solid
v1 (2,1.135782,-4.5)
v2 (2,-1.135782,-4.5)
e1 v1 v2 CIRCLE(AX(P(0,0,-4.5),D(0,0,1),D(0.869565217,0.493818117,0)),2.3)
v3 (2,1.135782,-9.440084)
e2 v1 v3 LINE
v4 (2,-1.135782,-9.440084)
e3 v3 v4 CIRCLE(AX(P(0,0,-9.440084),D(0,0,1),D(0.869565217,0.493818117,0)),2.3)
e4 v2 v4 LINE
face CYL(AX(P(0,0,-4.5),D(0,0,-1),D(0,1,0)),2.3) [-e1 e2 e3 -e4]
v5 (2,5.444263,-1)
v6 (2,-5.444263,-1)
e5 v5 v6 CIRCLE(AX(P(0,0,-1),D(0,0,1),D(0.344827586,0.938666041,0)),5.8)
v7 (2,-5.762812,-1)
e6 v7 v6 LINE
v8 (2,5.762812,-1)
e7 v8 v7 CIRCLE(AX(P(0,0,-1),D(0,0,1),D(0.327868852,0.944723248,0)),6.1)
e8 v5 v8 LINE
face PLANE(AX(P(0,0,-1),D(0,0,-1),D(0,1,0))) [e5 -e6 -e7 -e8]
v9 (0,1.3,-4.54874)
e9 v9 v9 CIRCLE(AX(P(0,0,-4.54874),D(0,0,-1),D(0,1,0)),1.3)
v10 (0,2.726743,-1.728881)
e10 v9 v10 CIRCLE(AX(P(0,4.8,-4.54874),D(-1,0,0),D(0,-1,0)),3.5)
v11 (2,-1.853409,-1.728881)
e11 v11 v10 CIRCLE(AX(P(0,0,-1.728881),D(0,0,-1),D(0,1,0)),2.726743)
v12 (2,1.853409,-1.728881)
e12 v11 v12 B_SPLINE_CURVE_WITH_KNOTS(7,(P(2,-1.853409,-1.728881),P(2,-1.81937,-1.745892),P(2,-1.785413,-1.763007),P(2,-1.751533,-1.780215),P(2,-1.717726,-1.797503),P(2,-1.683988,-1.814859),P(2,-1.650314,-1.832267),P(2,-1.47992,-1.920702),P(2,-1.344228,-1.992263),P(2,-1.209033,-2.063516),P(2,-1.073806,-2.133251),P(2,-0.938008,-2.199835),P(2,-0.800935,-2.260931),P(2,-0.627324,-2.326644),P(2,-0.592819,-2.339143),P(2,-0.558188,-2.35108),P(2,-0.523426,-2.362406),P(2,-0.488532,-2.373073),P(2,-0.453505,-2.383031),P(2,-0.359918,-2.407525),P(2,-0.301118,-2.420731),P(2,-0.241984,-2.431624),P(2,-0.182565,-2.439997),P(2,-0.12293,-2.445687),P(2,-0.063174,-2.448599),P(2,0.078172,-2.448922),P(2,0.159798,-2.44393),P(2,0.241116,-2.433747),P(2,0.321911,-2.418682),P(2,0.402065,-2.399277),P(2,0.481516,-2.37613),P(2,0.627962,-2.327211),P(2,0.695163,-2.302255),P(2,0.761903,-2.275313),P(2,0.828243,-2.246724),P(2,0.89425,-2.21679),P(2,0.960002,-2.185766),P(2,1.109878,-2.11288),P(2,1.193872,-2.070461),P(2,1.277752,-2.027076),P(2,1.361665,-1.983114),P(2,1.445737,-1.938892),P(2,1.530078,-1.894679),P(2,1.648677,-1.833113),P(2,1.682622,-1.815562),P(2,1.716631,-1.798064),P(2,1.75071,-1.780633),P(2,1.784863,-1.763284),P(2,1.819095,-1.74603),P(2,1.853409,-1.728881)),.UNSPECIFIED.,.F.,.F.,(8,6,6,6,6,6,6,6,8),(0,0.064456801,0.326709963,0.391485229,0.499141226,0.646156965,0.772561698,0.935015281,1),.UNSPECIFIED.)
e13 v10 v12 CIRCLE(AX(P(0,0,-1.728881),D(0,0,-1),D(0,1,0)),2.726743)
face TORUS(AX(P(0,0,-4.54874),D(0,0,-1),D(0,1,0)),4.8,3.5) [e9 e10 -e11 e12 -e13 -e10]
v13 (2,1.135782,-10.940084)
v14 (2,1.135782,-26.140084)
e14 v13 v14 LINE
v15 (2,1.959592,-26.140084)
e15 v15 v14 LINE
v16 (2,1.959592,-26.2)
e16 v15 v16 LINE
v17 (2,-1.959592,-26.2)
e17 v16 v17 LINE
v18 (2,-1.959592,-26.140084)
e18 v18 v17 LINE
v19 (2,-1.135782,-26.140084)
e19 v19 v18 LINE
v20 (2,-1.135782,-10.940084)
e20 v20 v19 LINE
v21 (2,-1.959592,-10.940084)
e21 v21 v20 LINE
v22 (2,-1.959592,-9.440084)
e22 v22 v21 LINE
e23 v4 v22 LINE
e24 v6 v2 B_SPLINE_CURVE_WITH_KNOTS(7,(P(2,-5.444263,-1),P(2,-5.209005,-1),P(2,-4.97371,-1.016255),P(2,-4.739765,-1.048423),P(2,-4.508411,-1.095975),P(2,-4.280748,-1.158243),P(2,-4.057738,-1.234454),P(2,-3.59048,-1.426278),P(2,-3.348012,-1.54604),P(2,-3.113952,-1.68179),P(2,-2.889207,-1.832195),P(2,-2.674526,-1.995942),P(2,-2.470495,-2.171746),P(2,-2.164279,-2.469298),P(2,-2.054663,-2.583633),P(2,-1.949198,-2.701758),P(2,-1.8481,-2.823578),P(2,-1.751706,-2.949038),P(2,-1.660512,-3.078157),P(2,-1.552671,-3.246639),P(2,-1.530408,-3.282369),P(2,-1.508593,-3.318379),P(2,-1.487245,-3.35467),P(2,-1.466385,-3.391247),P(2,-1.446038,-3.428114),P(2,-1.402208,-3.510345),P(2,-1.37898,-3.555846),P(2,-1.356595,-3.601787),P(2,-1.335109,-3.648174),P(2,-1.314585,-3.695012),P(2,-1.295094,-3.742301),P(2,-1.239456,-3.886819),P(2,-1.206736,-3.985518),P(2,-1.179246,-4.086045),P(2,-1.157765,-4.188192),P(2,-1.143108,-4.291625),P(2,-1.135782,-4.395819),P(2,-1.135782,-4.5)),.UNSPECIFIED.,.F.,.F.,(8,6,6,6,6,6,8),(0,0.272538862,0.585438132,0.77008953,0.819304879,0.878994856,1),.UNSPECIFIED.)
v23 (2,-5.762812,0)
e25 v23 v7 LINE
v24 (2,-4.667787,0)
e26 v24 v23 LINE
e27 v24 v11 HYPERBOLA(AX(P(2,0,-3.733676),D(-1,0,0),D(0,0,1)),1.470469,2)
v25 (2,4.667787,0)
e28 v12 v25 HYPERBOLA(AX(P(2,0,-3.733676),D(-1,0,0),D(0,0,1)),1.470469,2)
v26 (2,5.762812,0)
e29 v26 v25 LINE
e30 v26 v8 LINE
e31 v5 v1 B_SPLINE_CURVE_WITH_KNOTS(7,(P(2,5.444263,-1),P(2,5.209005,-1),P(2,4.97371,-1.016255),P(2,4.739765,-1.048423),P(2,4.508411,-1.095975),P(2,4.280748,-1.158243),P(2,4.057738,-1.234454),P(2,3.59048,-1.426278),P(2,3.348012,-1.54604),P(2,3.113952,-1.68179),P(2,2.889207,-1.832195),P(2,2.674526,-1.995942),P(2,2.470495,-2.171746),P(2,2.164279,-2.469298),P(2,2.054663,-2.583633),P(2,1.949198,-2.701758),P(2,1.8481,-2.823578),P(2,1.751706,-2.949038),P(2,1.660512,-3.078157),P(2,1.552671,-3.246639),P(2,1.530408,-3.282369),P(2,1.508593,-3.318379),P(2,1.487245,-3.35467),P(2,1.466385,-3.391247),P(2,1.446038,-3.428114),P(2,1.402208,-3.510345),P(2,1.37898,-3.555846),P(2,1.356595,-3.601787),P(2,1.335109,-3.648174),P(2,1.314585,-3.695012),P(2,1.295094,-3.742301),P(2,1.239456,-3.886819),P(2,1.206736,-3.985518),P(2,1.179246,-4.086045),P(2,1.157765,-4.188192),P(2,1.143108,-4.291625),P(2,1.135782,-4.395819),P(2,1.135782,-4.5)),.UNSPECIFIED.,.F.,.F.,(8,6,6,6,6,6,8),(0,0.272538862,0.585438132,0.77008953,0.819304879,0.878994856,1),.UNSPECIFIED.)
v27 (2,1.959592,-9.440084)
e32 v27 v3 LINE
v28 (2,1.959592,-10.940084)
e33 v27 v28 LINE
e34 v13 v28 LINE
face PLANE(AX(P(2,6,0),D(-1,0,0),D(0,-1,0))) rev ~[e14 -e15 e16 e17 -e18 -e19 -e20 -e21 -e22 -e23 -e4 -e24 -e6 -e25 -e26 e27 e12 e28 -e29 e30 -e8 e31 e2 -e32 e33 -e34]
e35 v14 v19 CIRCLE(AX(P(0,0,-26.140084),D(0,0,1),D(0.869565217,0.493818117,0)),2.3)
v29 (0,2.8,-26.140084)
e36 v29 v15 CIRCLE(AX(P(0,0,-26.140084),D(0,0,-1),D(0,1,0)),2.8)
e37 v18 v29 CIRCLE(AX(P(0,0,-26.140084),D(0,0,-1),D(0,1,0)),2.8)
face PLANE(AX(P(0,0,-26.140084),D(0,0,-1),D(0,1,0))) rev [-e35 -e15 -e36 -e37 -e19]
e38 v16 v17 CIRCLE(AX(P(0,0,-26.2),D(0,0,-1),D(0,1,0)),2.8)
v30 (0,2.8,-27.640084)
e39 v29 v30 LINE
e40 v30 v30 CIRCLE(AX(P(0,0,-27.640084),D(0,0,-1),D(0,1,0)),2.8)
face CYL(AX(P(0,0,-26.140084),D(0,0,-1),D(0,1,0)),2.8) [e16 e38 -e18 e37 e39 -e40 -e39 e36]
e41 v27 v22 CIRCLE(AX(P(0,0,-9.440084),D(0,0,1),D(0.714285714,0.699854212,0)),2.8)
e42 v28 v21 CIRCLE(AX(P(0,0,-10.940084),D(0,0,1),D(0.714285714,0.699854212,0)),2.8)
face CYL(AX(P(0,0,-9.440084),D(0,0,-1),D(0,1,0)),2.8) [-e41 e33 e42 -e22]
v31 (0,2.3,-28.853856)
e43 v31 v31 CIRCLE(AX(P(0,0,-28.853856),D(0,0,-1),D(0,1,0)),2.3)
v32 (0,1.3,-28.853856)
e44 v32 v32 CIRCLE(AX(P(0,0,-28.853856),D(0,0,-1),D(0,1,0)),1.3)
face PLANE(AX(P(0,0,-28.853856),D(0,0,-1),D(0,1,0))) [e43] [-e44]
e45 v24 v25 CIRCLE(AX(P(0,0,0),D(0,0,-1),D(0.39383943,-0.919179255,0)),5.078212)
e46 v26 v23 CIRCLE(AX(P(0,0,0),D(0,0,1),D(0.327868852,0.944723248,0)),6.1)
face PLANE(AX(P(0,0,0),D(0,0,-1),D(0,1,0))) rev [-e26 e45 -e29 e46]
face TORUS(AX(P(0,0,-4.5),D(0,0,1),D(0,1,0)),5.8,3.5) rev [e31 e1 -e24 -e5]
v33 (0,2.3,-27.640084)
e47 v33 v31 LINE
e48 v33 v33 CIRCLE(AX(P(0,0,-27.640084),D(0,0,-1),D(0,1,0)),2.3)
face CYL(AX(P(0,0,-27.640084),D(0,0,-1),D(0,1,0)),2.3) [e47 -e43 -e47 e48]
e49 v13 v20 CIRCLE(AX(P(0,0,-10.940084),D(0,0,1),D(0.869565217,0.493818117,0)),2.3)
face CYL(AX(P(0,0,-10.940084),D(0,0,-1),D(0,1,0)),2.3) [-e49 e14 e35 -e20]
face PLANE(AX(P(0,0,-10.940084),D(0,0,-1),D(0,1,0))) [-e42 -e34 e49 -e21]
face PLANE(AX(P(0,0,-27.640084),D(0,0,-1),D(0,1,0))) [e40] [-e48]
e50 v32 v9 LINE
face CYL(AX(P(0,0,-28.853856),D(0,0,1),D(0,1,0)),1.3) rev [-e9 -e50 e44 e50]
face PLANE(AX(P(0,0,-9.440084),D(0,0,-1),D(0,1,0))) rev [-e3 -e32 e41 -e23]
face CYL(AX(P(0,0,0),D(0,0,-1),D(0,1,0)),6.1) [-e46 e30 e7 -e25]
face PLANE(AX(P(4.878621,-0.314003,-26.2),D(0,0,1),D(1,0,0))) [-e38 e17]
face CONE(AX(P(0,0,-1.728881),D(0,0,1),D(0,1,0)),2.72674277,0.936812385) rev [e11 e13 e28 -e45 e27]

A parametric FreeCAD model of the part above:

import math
import FreeCAD as App
import Part
import Sketcher
from FreeCAD import Vector
Q = App.Units.Quantity

doc = App.newDocument("Part")
body = doc.addObject("PartDesign::Body", "Body")

sketch1 = body.newObject("Sketcher::SketchObject", "Sketch")
sketch1.AttachmentSupport = (doc.getObject("YZ_Plane"), [""])
sketch1.MapMode = "FlatFace"
sketch1.addGeometry([
    Part.LineSegment(Vector(6.1, 0, 0), Vector(5.08, 0, 0)),
    Part.LineSegment(Vector(5.08, 0, 0), Vector(2.73, -1.73, 0)),
    Part.ArcOfCircle(Part.Circle(Vector(4.8, -4.55, 0), Vector(0, 0, 1), 3.5), math.radians(126), math.radians(180)),
    Part.LineSegment(Vector(1.3, -4.55, 0), Vector(1.3, -28.85, 0)),
    Part.LineSegment(Vector(1.3, -28.85, 0), Vector(2.3, -28.85, 0)),
    Part.LineSegment(Vector(2.3, -28.85, 0), Vector(2.3, -27.64, 0)),
    Part.LineSegment(Vector(2.3, -27.64, 0), Vector(2.8, -27.64, 0)),
    Part.LineSegment(Vector(2.8, -27.64, 0), Vector(2.8, -26.14, 0)),
    Part.LineSegment(Vector(2.8, -26.14, 0), Vector(2.3, -26.14, 0)),
    Part.LineSegment(Vector(2.3, -26.14, 0), Vector(2.3, -10.94, 0)),
    Part.LineSegment(Vector(2.3, -10.94, 0), Vector(2.8, -10.94, 0)),
    Part.LineSegment(Vector(2.8, -10.94, 0), Vector(2.8, -9.44, 0)),
    Part.LineSegment(Vector(2.8, -9.44, 0), Vector(2.3, -9.44, 0)),
    Part.LineSegment(Vector(2.3, -9.44, 0), Vector(2.3, -4.5, 0)),
    Part.ArcOfCircle(Part.Circle(Vector(5.8, -4.5, 0), Vector(0, 0, 1), 3.5), math.radians(90), math.radians(180)),
    Part.LineSegment(Vector(5.8, -1, 0), Vector(6.1, -1, 0)),
    Part.LineSegment(Vector(6.1, -1, 0), Vector(6.1, 0, 0)),
], False)
sketch1.addConstraint([
    Sketcher.Constraint("Coincident", 0, 2, 1, 1),
    Sketcher.Constraint("Tangent", 1, 2, 2, 1),
    Sketcher.Constraint("Tangent", 2, 2, 3, 1),
    Sketcher.Constraint("Coincident", 3, 2, 4, 1),
    Sketcher.Constraint("Coincident", 4, 2, 5, 1),
    Sketcher.Constraint("Coincident", 5, 2, 6, 1),
    Sketcher.Constraint("Coincident", 6, 2, 7, 1),
    Sketcher.Constraint("Coincident", 7, 2, 8, 1),
    Sketcher.Constraint("Coincident", 8, 2, 9, 1),
    Sketcher.Constraint("Coincident", 9, 2, 10, 1),
    Sketcher.Constraint("Coincident", 10, 2, 11, 1),
    Sketcher.Constraint("Coincident", 11, 2, 12, 1),
    Sketcher.Constraint("Coincident", 12, 2, 13, 1),
    Sketcher.Constraint("Tangent", 13, 2, 14, 2),
    Sketcher.Constraint("Tangent", 14, 1, 15, 1),
    Sketcher.Constraint("Coincident", 15, 2, 16, 1),
    Sketcher.Constraint("Coincident", 16, 2, 0, 1),
    Sketcher.Constraint("Horizontal", 0),
    Sketcher.Constraint("Vertical", 3),
    Sketcher.Constraint("Horizontal", 4),
    Sketcher.Constraint("Vertical", 5),
    Sketcher.Constraint("Horizontal", 6),
    Sketcher.Constraint("Vertical", 7),
    Sketcher.Constraint("Horizontal", 8),
    Sketcher.Constraint("Vertical", 9),
    Sketcher.Constraint("Horizontal", 10),
    Sketcher.Constraint("Vertical", 11),
    Sketcher.Constraint("Horizontal", 12),
    Sketcher.Constraint("Vertical", 13),
    Sketcher.Constraint("Horizontal", 15),
    Sketcher.Constraint("Vertical", 16),
    Sketcher.Constraint("Equal", 2, 14),
    Sketcher.Constraint("PointOnObject", 0, 2, -1),
    Sketcher.Constraint("Vertical", 5, 2, 8, 2),
    Sketcher.Constraint("Vertical", 7, 2, 10, 2),
    Sketcher.Constraint("Vertical", 9, 2, 12, 2),
    Sketcher.Constraint("Equal", 7, 11),
    Sketcher.Constraint("Equal", 4, 16),
    Sketcher.Constraint("Radius", 2, Q("3.5 mm")),
    Sketcher.Constraint("DistanceX", 4, 1, 4, 2, Q("1 mm")),
    Sketcher.Constraint("DistanceX", 6, 1, 6, 2, Q("0.5 mm")),
    Sketcher.Constraint("DistanceX", 15, 1, 15, 2, Q("0.3 mm")),
    Sketcher.Constraint("DistanceY", 7, 1, 7, 2, Q("1.5 mm")),
    Sketcher.Constraint("DistanceY", 9, 1, 9, 2, Q("15.2 mm")),
    Sketcher.Constraint("DistanceX", -1, 1, 2, 3, Q("4.8 mm")),
    Sketcher.Constraint("DistanceX", 0, 2, 0, 1, Q("1.021788 mm")),
    Sketcher.Constraint("DistanceY", 3, 2, 3, 1, Q("24.305116 mm")),
    Sketcher.Constraint("DistanceY", 5, 1, 5, 2, Q("1.213772 mm")),
    Sketcher.Constraint("DistanceY", 13, 1, 13, 2, Q("4.940084 mm")),
])
revolution = body.newObject("PartDesign::Revolution", "Revolution")
revolution.Profile = sketch1
revolution.ReferenceAxis = (sketch1, ["V_Axis"])
revolution.Angle = 360

sketch2 = body.newObject("Sketcher::SketchObject", "Sketch001")
sketch2.AttachmentSupport = (doc.getObject("XY_Plane"), [""])
sketch2.MapMode = "FlatFace"
sketch2.addGeometry([
    Part.LineSegment(Vector(2, 6, 0), Vector(2, -7, 0)),
    Part.LineSegment(Vector(2, -7, 0), Vector(8, -7, 0)),
    Part.LineSegment(Vector(8, -7, 0), Vector(8, 6, 0)),
    Part.LineSegment(Vector(8, 6, 0), Vector(2, 6, 0)),
], False)
sketch2.addConstraint([
    Sketcher.Constraint("Coincident", 0, 2, 1, 1),
    Sketcher.Constraint("Coincident", 1, 2, 2, 1),
    Sketcher.Constraint("Coincident", 2, 2, 3, 1),
    Sketcher.Constraint("Coincident", 3, 2, 0, 1),
    Sketcher.Constraint("Vertical", 0),
    Sketcher.Constraint("Horizontal", 1),
    Sketcher.Constraint("DistanceX", -1, 1, 0, 2, Q("2 mm")),
    Sketcher.Constraint("DistanceY", -1, 1, 3, 2, Q("6 mm")),
    Sketcher.Constraint("DistanceX", 1, 1, 1, 2, Q("5.819182 mm")),
    Sketcher.Constraint("DistanceY", 0, 2, 0, 1, Q("12.569031 mm")),
    Sketcher.Constraint("DistanceY", -1, 1, 2, 2, Q("5.958081 mm")),
    Sketcher.Constraint("DistanceX", 2, 2, 1, 2, Q("0.111179 mm")),
])
pocket1 = body.newObject("PartDesign::Pocket", "Pocket")
pocket1.Profile = sketch2
pocket1.Length = 26.2

doc.recompute()
